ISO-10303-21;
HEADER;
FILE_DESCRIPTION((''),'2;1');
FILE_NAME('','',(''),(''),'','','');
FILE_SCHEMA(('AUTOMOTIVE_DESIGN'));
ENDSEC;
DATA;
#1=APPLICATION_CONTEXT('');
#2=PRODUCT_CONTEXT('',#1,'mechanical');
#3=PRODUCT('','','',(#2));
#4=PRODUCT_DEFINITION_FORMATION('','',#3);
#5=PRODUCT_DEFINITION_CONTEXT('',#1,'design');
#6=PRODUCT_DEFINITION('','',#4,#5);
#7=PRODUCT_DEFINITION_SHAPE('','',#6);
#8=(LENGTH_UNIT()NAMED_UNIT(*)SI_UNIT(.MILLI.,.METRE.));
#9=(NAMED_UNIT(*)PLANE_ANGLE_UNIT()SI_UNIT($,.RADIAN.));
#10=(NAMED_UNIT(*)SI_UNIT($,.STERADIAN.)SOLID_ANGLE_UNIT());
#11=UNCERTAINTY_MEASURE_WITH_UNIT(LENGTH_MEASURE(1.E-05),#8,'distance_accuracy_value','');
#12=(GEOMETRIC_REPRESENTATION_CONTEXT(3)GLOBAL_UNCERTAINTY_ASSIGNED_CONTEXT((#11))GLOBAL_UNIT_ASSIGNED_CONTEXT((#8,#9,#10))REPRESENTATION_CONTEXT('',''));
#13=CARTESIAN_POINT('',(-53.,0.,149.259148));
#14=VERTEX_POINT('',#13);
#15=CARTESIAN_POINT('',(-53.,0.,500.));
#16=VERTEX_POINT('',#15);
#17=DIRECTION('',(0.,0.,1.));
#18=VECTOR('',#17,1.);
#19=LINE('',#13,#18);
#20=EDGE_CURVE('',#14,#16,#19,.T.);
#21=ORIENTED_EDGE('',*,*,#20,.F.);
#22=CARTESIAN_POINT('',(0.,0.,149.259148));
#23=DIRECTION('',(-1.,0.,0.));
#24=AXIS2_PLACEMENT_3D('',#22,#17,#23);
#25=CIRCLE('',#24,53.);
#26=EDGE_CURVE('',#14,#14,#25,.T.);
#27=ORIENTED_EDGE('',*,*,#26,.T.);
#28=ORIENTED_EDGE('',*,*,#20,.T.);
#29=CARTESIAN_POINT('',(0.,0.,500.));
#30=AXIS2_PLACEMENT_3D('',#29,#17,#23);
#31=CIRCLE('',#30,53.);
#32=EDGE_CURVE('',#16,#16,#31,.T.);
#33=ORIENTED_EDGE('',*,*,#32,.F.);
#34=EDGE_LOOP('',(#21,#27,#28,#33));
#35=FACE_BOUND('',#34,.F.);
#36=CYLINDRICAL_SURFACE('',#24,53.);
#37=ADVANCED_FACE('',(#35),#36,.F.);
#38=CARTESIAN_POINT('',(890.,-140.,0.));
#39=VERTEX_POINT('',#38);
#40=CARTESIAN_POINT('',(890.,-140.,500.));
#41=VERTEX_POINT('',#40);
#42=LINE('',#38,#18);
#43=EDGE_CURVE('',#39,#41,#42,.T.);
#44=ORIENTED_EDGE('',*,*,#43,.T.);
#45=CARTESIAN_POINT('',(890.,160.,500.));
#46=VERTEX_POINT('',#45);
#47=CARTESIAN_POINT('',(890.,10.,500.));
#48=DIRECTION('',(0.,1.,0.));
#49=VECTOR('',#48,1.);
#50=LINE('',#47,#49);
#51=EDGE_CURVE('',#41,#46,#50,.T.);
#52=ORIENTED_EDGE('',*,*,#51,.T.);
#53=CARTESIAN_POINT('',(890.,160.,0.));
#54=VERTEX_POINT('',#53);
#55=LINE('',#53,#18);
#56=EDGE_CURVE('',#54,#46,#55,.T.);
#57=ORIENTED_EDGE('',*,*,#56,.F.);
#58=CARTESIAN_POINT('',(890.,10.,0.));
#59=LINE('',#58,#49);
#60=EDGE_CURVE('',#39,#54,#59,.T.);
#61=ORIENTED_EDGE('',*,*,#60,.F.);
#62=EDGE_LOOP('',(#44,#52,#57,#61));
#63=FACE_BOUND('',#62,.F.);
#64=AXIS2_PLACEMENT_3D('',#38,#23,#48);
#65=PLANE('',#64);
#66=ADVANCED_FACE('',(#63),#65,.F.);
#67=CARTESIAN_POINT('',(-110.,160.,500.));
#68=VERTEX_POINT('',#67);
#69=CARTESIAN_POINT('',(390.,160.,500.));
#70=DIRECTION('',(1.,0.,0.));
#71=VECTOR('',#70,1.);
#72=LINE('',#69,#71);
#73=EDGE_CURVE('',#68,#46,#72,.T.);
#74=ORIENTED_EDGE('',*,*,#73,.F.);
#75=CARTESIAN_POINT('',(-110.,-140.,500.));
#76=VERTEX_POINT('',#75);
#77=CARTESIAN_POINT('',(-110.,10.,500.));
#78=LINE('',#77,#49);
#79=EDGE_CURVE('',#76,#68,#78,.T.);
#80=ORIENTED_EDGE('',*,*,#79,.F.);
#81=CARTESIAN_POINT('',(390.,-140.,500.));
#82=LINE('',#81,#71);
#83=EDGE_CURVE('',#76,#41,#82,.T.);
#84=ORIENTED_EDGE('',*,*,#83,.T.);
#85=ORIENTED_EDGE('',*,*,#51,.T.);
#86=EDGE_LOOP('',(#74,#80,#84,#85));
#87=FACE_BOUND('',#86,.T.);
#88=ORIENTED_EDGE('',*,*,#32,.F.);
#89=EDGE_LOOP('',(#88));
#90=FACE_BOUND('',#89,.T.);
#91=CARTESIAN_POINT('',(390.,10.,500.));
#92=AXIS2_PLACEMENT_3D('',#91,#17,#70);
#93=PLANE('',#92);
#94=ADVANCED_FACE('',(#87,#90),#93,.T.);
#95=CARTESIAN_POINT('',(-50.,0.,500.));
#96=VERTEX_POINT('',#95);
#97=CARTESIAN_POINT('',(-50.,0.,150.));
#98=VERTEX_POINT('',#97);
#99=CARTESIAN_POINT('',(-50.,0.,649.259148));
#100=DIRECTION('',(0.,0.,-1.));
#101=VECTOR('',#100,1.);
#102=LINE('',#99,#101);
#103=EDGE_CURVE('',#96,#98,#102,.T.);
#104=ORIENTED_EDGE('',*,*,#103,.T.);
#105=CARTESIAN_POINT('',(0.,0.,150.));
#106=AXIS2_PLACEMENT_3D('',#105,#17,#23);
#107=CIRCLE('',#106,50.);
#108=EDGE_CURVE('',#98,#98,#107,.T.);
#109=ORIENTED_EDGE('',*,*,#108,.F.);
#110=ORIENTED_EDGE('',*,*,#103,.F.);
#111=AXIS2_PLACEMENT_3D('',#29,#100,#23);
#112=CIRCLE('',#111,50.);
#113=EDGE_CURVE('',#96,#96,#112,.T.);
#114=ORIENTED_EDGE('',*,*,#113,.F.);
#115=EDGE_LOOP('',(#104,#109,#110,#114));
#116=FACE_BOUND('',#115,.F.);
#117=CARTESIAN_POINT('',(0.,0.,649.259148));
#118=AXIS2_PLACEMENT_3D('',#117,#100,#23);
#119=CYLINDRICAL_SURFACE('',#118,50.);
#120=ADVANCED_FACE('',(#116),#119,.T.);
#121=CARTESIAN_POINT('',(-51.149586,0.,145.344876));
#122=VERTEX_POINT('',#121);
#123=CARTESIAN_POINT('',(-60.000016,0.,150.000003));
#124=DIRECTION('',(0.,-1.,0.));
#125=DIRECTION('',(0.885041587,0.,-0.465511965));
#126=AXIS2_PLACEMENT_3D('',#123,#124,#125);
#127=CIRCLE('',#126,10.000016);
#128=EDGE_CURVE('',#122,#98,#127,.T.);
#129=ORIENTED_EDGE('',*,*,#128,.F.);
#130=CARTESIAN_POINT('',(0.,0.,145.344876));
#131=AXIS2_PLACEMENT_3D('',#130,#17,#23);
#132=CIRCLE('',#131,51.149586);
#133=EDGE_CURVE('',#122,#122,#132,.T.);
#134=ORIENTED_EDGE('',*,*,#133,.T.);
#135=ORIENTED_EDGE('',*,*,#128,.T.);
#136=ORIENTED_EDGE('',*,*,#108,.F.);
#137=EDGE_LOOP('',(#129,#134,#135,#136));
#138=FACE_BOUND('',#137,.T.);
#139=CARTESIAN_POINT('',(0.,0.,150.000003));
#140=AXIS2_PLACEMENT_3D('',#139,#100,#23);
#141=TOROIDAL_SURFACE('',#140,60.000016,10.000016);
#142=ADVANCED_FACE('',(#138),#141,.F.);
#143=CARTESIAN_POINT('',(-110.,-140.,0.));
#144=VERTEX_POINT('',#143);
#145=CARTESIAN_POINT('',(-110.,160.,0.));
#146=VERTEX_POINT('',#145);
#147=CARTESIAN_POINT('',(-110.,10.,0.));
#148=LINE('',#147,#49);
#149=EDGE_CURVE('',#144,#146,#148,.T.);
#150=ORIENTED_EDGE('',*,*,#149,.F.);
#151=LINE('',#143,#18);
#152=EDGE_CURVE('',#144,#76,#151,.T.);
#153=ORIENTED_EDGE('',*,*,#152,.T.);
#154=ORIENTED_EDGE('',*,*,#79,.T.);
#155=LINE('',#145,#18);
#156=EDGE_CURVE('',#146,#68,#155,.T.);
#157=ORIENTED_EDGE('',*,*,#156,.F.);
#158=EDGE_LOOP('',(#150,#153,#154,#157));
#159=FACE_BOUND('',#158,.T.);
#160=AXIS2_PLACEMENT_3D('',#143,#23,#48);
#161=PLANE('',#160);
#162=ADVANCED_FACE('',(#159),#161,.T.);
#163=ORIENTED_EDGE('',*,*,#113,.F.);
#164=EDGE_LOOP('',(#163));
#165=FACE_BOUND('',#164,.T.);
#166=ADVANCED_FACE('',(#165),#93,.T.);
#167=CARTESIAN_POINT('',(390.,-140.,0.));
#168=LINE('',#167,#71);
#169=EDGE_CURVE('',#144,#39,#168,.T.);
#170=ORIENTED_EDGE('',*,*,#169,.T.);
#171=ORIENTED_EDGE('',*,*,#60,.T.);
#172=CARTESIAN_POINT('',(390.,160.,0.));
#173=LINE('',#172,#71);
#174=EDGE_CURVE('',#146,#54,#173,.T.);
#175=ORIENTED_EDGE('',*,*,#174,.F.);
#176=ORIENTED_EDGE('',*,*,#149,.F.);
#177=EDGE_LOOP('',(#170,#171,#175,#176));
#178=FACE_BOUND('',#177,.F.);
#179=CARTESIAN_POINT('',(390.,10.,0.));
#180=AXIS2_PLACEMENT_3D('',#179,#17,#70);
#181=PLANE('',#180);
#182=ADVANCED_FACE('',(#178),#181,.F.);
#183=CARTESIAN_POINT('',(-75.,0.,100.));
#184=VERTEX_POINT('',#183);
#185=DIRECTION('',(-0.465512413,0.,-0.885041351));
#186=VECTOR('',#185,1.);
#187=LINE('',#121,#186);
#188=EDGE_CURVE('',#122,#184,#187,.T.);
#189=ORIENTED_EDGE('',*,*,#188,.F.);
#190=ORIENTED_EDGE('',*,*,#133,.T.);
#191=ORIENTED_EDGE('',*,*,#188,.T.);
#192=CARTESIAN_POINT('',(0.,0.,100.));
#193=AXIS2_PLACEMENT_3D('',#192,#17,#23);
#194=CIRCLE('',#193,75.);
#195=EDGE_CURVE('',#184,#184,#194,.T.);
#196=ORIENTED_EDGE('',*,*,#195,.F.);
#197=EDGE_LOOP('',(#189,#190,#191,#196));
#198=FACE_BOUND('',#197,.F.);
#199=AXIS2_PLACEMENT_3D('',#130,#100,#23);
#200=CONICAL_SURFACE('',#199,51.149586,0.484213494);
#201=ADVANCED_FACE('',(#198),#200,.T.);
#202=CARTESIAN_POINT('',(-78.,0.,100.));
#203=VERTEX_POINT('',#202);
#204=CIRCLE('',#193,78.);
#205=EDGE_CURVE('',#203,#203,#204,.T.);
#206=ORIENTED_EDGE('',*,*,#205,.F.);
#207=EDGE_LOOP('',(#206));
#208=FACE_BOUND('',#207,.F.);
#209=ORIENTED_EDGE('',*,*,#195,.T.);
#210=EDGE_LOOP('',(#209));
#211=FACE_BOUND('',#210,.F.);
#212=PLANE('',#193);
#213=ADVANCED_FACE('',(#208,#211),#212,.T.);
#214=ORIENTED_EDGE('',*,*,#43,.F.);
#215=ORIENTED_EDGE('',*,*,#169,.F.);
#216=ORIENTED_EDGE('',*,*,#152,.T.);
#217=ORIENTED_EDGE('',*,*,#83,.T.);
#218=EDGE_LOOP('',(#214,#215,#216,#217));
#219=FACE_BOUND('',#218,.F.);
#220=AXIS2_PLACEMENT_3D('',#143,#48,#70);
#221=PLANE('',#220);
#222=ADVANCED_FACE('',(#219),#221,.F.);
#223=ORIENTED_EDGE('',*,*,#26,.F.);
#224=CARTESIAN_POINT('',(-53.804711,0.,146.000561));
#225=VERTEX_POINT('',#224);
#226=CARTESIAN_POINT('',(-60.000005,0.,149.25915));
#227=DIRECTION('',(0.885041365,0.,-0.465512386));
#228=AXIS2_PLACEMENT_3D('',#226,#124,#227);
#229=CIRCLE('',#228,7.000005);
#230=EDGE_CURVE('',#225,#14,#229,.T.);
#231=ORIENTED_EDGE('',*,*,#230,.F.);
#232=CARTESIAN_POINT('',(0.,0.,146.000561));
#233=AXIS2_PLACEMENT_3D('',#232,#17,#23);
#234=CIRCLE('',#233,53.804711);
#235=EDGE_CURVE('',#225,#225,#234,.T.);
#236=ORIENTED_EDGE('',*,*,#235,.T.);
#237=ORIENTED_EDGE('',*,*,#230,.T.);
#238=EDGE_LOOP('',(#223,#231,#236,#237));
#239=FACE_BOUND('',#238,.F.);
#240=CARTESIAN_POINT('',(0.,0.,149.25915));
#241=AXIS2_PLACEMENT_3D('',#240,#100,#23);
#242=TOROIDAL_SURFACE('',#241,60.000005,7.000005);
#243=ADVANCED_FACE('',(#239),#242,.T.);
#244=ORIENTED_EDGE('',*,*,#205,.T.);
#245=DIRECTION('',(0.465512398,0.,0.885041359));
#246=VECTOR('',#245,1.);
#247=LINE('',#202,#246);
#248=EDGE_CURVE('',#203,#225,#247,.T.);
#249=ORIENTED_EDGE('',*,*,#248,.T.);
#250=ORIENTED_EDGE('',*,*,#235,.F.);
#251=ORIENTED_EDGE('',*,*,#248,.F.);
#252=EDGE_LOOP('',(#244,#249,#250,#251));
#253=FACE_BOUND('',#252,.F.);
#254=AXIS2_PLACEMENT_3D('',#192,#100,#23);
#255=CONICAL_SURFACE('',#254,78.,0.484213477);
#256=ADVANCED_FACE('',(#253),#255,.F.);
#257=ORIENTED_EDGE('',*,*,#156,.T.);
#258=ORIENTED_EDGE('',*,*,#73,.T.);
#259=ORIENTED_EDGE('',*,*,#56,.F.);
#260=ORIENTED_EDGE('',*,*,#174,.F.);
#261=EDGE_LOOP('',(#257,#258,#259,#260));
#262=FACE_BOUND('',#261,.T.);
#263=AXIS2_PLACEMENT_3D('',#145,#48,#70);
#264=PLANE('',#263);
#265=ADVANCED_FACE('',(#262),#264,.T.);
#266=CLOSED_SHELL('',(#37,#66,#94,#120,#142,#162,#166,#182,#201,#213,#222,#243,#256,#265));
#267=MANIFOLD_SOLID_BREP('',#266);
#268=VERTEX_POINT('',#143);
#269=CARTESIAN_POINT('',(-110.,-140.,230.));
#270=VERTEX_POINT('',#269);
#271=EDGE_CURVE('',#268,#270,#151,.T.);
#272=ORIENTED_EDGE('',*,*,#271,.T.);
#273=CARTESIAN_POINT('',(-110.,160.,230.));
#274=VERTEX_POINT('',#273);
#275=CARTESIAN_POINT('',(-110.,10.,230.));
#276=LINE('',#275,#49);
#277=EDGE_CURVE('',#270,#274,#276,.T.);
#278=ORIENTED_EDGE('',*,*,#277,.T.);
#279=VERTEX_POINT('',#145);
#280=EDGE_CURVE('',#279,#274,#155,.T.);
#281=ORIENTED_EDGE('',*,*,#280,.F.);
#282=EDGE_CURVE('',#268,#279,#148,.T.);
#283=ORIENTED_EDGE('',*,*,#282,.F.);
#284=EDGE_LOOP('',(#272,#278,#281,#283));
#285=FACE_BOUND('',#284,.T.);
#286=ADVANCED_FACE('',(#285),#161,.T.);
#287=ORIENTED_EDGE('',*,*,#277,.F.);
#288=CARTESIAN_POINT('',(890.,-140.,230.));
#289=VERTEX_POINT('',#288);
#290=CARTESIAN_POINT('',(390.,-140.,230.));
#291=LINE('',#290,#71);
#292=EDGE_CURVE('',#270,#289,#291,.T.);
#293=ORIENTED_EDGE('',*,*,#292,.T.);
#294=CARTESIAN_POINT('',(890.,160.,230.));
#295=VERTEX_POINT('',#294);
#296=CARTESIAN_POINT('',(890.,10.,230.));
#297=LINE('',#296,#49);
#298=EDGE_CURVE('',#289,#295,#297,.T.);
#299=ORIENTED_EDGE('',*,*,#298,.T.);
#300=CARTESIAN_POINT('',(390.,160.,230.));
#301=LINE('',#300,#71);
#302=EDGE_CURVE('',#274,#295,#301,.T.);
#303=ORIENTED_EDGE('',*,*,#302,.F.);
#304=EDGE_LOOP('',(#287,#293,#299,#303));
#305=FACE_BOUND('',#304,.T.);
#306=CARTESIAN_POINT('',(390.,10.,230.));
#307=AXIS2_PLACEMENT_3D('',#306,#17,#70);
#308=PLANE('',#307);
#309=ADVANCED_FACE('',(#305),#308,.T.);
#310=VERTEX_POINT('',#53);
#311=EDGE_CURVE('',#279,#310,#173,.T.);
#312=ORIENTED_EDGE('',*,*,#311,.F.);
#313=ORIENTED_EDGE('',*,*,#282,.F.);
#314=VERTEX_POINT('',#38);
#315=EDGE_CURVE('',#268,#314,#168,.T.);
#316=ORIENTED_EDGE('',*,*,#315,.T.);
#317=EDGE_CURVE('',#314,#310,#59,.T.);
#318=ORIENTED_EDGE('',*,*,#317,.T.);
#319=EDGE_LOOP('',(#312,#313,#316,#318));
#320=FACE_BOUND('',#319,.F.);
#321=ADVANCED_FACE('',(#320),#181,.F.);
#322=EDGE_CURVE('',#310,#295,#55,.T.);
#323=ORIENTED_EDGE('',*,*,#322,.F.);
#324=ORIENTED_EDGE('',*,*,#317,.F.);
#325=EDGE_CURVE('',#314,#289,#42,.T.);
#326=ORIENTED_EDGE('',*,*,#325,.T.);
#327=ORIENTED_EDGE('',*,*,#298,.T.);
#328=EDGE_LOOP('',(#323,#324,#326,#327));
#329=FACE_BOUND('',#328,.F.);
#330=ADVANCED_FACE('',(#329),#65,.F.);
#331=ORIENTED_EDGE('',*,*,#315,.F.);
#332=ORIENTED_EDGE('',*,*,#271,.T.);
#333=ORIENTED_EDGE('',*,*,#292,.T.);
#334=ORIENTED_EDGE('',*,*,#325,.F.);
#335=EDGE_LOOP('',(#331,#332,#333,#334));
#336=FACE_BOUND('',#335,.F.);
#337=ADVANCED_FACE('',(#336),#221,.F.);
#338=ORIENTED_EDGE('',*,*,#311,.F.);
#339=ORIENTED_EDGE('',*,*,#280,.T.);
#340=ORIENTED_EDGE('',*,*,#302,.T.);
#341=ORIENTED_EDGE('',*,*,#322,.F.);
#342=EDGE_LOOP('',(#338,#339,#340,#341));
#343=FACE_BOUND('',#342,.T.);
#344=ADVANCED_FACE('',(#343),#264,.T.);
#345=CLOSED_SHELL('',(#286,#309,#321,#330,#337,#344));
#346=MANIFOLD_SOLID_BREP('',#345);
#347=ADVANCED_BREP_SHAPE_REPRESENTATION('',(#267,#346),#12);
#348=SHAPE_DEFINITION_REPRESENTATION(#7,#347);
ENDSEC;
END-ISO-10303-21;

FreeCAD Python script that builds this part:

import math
import FreeCAD as App
import Part
import Sketcher
Q = App.Units.Quantity


def add_polygon(sketch, points):
    """Adds a closed chain of lines whose ends are joined by coincident constraints."""
    first, n = sketch.GeometryCount, len(points)
    for a, b in zip(points, points[1:] + points[:1]):
        sketch.addGeometry(Part.LineSegment(App.Vector(*a, 0), App.Vector(*b, 0)), False)
    for i in range(n):
        sketch.addConstraint(Sketcher.Constraint("Coincident", first + i, 2, first + (i + 1) % n, 1))

doc = App.newDocument("Part")
params = doc.addObject("Spreadsheet::Sheet", "Params")
for row, (alias, value) in enumerate([
    ("sketch1_width", "3 mm"),
    ("sketch1_height", "500 mm"),
    ("revolution_angle", "360 deg"),
    ("sketch2_width", "1000 mm"),
    ("sketch2_height", "300 mm"),
    ("pad1_length", "500 mm"),
    ("sketch3_width", "1000 mm"),
    ("sketch3_height", "300 mm"),
    ("pad2_length", "230 mm"),
], start=1):
    params.set(f"A{row}", alias)
    params.set(f"B{row}", "=" + value)
    params.setAlias(f"B{row}", alias)

body = doc.addObject("PartDesign::Body", "Body")

sketch1 = body.newObject("Sketcher::SketchObject", "Sketch")
sketch1.AttachmentSupport = (doc.getObject("XZ_Plane"), [""])
sketch1.MapMode = "FlatFace"
sketch1.addGeometry(Part.LineSegment(App.Vector(-50, 150, 0), App.Vector(-50, 649.259148, 0)), False)
sketch1.addGeometry(Part.LineSegment(App.Vector(-50, 649.259148, 0), App.Vector(-53, 649.259148, 0)), False)
sketch1.addGeometry(Part.LineSegment(App.Vector(-53, 649.259148, 0), App.Vector(-53, 149.259148, 0)), False)
sketch1.addGeometry(Part.ArcOfCircle(Part.Circle(App.Vector(-60.000005, 149.25915, 0), App.Vector(0, 0, 1), 7.000005), math.radians(-27.743388), math.radians(-0.000016)), False)
sketch1.addGeometry(Part.LineSegment(App.Vector(-53.804711, 146.000561, 0), App.Vector(-78, 100, 0)), False)
sketch1.addGeometry(Part.LineSegment(App.Vector(-78, 100, 0), App.Vector(-75, 100, 0)), False)
sketch1.addGeometry(Part.LineSegment(App.Vector(-75, 100, 0), App.Vector(-51.149586, 145.344876, 0)), False)
sketch1.addGeometry(Part.ArcOfCircle(Part.Circle(App.Vector(-60.000016, 150.000003, 0), App.Vector(0, 0, 1), 10.000016), math.radians(-27.743361), math.radians(-0.000018)), False)
sketch1.addConstraint(Sketcher.Constraint("Coincident", 0, 2, 1, 1))
sketch1.addConstraint(Sketcher.Constraint("Coincident", 1, 2, 2, 1))
sketch1.addConstraint(Sketcher.Constraint("Tangent", 2, 2, 3, 2))
sketch1.addConstraint(Sketcher.Constraint("Tangent", 3, 1, 4, 1))
sketch1.addConstraint(Sketcher.Constraint("Coincident", 4, 2, 5, 1))
sketch1.addConstraint(Sketcher.Constraint("Coincident", 5, 2, 6, 1))
sketch1.addConstraint(Sketcher.Constraint("Tangent", 6, 2, 7, 1))
sketch1.addConstraint(Sketcher.Constraint("Tangent", 7, 2, 0, 1))
sketch1.addConstraint(Sketcher.Constraint("Vertical", 0))
sketch1.addConstraint(Sketcher.Constraint("Horizontal", 1))
sketch1.addConstraint(Sketcher.Constraint("Vertical", 2))
sketch1.addConstraint(Sketcher.Constraint("Horizontal", 5))
sketch1.addConstraint(Sketcher.Constraint("Parallel", 4, 6))
sketch1.addConstraint(Sketcher.Constraint("Equal", 1, 5))
sketch1.addConstraint(Sketcher.Constraint("DistanceX", 1, 2, 1, 1, Q("3 mm")))
sketch1.addConstraint(Sketcher.Constraint("DistanceY", 2, 2, 2, 1, Q("500 mm")))
sketch1.addConstraint(Sketcher.Constraint("DistanceX", 0, 2, -1, 1, Q("50 mm")))
sketch1.addConstraint(Sketcher.Constraint("DistanceX", 4, 2, -1, 1, Q("78 mm")))
sketch1.addConstraint(Sketcher.Constraint("DistanceY", -1, 1, 4, 2, Q("100 mm")))
sketch1.addConstraint(Sketcher.Constraint("DistanceY", -1, 1, 7, 2, Q("150 mm")))
sketch1.addConstraint(Sketcher.Constraint("Radius", 3, Q("7.000005 mm")))
sketch1.addConstraint(Sketcher.Constraint("Radius", 7, Q("10.000016 mm")))
sketch1.setExpression("Constraints[14]", "Params.sketch1_width")
sketch1.setExpression("Constraints[15]", "Params.sketch1_height")
revolution = body.newObject("PartDesign::Revolution", "Revolution")
revolution.Profile = sketch1
revolution.ReferenceAxis = (sketch1, ["V_Axis"])
revolution.setExpression("Angle", "Params.revolution_angle")
body2 = doc.addObject("PartDesign::Body", "Body001")

sketch2 = body2.newObject("Sketcher::SketchObject", "Sketch001")
sketch2.AttachmentSupport = (doc.getObject("XY_Plane001"), [""])
sketch2.MapMode = "FlatFace"
add_polygon(sketch2, [(-110, 160), (-110, -140), (890, -140), (890, 160)])
sketch2.addConstraint(Sketcher.Constraint("Vertical", 0))
sketch2.addConstraint(Sketcher.Constraint("Horizontal", 1))
sketch2.addConstraint(Sketcher.Constraint("Vertical", 2))
sketch2.addConstraint(Sketcher.Constraint("Horizontal", 3))
sketch2.addConstraint(Sketcher.Constraint("DistanceX", 1, 1, 1, 2, Q("1000 mm")))
sketch2.addConstraint(Sketcher.Constraint("DistanceY", 0, 2, 0, 1, Q("300 mm")))
sketch2.addConstraint(Sketcher.Constraint("DistanceX", 0, 2, -1, 1, Q("110 mm")))
sketch2.addConstraint(Sketcher.Constraint("DistanceY", 0, 2, -1, 1, Q("140 mm")))
sketch2.setExpression("Constraints[8]", "Params.sketch2_width")
sketch2.setExpression("Constraints[9]", "Params.sketch2_height")
pad1 = body2.newObject("PartDesign::Pad", "Pad")
pad1.Profile = sketch2
pad1.setExpression("Length", "Params.pad1_length")
doc.recompute()

boolean = body2.newObject("PartDesign::Boolean", "Boolean")
boolean.Type = "Cut"
boolean.addObjects([body])
body3 = doc.addObject("PartDesign::Body", "Body002")

sketch3 = body3.newObject("Sketcher::SketchObject", "Sketch002")
sketch3.AttachmentSupport = (doc.getObject("XY_Plane002"), [""])
sketch3.MapMode = "FlatFace"
add_polygon(sketch3, [(-110, 160), (-110, -140), (890, -140), (890, 160)])
sketch3.addConstraint(Sketcher.Constraint("Vertical", 0))
sketch3.addConstraint(Sketcher.Constraint("Horizontal", 1))
sketch3.addConstraint(Sketcher.Constraint("Vertical", 2))
sketch3.addConstraint(Sketcher.Constraint("Horizontal", 3))
sketch3.addConstraint(Sketcher.Constraint("DistanceX", 1, 1, 1, 2, Q("1000 mm")))
sketch3.addConstraint(Sketcher.Constraint("DistanceY", 0, 2, 0, 1, Q("300 mm")))
sketch3.addConstraint(Sketcher.Constraint("DistanceX", 0, 2, -1, 1, Q("110 mm")))
sketch3.addConstraint(Sketcher.Constraint("DistanceY", 0, 2, -1, 1, Q("140 mm")))
sketch3.setExpression("Constraints[8]", "Params.sketch3_width")
sketch3.setExpression("Constraints[9]", "Params.sketch3_height")
pad2 = body3.newObject("PartDesign::Pad", "Pad001")
pad2.Profile = sketch3
pad2.setExpression("Length", "Params.pad2_length")

doc.recompute()
